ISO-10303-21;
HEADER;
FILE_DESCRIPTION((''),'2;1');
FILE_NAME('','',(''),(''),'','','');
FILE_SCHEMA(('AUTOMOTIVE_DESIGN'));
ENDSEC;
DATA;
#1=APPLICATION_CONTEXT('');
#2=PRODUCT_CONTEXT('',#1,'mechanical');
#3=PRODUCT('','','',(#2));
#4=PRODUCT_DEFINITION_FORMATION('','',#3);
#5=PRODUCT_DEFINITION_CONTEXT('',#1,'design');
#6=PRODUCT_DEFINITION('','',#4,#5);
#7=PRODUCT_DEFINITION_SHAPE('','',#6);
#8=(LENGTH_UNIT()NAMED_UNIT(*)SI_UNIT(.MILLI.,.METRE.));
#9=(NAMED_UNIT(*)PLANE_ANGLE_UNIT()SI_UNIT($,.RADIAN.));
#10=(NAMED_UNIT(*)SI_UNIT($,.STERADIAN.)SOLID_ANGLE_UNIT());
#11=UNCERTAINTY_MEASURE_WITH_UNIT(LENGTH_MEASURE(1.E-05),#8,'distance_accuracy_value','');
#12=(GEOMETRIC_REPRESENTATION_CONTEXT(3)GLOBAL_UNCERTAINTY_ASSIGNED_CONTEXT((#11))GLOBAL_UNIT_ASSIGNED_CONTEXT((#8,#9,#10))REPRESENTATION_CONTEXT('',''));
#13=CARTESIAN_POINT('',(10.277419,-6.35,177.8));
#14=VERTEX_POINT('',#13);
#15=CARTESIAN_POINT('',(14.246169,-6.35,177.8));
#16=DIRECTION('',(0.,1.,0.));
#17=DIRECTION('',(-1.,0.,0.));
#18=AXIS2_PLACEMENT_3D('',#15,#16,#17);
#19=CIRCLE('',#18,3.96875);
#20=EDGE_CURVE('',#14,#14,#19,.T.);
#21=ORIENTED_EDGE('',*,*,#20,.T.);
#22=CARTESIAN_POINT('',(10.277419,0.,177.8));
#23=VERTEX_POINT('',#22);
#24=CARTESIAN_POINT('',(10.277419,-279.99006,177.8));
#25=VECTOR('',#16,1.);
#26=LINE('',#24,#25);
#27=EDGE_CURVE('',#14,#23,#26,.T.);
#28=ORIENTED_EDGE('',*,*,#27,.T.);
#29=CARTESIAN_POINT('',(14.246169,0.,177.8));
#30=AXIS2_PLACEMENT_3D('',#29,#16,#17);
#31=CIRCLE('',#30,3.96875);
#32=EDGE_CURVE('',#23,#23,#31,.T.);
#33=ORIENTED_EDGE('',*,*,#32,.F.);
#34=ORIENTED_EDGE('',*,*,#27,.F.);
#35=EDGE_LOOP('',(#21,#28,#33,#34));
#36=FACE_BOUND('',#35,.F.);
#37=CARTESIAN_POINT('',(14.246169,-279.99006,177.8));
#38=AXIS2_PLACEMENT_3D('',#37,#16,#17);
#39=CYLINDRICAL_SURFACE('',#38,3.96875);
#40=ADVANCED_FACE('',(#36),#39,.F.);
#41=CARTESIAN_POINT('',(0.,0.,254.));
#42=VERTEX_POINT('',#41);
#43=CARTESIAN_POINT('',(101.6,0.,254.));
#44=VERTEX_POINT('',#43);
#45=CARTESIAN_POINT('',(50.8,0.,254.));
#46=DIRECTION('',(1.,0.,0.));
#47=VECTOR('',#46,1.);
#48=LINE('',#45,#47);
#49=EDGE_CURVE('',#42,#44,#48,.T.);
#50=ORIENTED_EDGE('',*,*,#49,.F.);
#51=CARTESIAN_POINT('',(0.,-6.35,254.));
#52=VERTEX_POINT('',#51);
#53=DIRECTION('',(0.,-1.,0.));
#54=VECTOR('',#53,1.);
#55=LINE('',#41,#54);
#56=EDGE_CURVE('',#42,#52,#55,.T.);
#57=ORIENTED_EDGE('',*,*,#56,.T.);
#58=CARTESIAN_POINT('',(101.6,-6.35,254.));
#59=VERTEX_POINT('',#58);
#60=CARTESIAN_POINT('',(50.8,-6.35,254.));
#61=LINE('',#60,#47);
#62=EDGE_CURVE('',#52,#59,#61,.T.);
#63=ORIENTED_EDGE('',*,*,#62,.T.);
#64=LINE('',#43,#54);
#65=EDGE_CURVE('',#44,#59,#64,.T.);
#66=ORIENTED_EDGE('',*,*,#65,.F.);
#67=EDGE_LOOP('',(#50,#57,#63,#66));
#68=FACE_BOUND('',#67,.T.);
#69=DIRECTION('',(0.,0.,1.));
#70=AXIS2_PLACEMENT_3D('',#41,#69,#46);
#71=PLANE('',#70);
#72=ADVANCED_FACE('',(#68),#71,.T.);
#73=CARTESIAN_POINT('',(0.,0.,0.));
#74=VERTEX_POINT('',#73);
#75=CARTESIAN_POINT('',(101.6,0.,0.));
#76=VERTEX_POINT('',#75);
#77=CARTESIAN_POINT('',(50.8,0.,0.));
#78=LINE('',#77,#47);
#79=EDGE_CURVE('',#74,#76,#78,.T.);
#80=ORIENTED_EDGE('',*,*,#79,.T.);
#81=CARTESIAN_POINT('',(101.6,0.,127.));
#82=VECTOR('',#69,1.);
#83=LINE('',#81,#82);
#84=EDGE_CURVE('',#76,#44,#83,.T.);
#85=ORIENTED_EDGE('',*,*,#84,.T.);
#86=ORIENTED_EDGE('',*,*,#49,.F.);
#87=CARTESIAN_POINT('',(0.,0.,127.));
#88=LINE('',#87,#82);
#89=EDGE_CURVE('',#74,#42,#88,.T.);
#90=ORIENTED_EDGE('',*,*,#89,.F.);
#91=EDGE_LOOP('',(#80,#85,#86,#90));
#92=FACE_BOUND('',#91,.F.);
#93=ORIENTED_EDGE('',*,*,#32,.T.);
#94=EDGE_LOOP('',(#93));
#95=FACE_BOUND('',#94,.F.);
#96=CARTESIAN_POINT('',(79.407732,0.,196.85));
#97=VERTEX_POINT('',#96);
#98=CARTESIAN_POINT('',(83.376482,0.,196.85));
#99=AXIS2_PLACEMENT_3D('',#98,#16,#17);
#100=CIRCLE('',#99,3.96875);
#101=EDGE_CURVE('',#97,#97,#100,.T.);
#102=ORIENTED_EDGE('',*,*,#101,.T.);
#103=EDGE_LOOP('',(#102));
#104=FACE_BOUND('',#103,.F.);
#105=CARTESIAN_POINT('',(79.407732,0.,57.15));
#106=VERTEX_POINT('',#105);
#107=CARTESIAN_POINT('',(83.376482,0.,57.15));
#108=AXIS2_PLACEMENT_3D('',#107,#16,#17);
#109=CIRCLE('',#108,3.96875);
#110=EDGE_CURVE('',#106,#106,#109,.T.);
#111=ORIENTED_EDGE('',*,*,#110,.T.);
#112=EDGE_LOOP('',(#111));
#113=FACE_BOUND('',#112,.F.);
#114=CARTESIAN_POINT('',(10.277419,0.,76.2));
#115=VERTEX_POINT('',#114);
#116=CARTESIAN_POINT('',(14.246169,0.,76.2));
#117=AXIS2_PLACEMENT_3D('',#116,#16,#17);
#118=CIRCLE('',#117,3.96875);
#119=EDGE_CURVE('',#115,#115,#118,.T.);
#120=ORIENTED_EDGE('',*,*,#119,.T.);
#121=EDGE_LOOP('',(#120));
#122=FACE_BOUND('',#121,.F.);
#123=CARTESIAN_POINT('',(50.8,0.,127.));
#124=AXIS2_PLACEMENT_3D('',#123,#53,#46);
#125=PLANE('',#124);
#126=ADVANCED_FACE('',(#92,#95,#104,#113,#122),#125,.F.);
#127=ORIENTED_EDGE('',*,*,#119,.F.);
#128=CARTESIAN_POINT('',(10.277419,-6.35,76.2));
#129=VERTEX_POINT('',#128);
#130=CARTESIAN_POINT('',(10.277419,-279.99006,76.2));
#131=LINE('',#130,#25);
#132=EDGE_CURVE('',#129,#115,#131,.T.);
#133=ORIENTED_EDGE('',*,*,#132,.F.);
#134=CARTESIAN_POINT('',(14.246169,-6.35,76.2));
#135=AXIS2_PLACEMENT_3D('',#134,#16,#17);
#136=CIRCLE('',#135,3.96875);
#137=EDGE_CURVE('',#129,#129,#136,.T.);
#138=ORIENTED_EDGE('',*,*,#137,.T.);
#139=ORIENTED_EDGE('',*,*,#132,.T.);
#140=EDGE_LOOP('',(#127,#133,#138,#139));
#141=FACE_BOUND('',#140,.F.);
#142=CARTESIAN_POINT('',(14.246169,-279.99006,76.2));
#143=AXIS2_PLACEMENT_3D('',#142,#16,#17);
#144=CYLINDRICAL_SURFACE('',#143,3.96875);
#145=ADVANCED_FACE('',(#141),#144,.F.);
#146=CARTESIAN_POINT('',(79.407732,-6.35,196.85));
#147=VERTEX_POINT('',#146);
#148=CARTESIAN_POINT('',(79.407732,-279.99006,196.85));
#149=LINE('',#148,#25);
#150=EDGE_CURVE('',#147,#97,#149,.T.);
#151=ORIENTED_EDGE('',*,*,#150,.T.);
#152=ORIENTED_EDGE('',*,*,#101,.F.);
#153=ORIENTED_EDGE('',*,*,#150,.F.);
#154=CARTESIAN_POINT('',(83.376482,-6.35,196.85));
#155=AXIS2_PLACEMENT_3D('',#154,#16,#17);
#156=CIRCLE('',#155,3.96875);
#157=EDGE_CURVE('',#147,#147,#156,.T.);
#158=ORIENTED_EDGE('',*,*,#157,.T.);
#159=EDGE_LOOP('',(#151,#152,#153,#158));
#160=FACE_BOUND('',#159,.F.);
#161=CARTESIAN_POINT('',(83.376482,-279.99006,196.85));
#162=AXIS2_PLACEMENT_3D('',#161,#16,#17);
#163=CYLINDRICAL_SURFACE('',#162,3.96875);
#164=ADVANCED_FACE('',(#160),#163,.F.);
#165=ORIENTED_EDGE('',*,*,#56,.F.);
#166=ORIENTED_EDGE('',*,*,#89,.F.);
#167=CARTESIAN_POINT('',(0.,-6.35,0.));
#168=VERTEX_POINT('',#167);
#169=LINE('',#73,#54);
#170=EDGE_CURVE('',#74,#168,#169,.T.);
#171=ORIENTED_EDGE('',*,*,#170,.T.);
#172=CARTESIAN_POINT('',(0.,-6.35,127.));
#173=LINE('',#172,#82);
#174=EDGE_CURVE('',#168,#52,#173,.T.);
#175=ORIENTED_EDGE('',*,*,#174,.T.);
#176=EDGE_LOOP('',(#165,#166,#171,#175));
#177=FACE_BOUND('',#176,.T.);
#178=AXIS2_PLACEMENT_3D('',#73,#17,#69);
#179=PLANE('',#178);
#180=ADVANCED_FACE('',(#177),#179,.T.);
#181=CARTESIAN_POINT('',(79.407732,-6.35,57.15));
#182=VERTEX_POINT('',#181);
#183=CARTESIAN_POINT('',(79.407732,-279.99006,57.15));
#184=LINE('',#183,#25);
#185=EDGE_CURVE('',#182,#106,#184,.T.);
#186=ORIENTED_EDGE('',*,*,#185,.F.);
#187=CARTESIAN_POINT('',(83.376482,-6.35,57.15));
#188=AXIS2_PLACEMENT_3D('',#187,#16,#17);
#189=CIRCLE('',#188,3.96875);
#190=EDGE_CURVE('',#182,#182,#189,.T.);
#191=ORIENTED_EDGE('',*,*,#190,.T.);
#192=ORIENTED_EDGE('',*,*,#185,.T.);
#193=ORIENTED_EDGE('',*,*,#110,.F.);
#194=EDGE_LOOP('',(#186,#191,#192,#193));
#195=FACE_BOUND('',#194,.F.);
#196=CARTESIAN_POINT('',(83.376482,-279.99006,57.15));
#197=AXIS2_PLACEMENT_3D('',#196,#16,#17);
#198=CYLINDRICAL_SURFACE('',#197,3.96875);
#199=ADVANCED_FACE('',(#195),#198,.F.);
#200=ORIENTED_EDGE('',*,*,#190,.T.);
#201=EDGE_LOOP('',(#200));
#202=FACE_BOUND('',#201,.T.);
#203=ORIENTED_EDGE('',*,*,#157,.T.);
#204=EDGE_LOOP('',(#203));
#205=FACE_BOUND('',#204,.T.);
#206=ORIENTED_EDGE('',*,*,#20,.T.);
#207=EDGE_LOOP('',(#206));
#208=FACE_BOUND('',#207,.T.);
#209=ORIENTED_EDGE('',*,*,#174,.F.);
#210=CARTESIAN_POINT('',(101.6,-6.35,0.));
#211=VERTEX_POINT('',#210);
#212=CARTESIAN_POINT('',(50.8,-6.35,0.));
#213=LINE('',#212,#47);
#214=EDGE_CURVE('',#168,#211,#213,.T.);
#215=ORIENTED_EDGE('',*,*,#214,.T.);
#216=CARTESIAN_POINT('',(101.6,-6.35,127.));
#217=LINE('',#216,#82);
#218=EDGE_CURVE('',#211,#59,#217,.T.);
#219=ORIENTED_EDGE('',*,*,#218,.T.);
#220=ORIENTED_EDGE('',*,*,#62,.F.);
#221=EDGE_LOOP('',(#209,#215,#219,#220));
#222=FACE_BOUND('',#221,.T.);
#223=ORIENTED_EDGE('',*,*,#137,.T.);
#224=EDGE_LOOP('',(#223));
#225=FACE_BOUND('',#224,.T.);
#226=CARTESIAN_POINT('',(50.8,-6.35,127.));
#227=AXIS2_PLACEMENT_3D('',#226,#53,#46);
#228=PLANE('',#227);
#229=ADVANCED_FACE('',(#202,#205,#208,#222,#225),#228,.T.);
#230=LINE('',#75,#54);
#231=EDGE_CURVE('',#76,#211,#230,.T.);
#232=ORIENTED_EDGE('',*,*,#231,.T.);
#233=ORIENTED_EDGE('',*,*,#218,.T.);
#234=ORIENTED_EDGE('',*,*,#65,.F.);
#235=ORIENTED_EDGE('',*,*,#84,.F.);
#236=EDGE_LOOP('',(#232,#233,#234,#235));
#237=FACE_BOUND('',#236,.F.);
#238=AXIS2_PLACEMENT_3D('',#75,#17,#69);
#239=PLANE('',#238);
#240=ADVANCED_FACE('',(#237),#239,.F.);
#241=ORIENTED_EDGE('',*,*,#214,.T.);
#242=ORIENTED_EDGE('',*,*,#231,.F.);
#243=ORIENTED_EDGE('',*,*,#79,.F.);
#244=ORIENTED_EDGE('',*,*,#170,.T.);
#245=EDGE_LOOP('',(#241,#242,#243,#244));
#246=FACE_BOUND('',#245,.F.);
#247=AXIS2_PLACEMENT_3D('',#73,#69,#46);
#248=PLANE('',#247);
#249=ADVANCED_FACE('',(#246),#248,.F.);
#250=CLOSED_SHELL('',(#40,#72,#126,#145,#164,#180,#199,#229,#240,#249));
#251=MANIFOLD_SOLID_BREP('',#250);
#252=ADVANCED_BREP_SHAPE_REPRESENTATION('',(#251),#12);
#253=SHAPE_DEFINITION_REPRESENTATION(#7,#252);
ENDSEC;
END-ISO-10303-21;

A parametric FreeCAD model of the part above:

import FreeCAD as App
import Part
import Sketcher
from FreeCAD import Vector
Q = App.Units.Quantity


def add_polygon(sketch, points):
    """Adds a closed chain of lines whose ends are joined by coincident constraints."""
    first, n = sketch.GeometryCount, len(points)
    for a, b in zip(points, points[1:] + points[:1]):
        sketch.addGeometry(Part.LineSegment(App.Vector(*a, 0), App.Vector(*b, 0)), False)
    for i in range(n):
        sketch.addConstraint(Sketcher.Constraint("Coincident", first + i, 2, first + (i + 1) % n, 1))

doc = App.newDocument("Part")
params = doc.addObject("Spreadsheet::Sheet", "Params")
for row, (alias, value) in enumerate([
    ("sketch1_width", "4 in"),
    ("sketch1_height", "10 in"),
    ("pad1_length", "0.25 in"),
    ("sketch2_diameter", "0.3125 in"),
    ("hole_diameter", "0.3125 in"),
    ("sketch3_diameter", "0.3125 in"),
    ("hole2_diameter", "0.3125 in"),
], start=1):
    params.set(f"A{row}", alias)
    params.set(f"B{row}", "=" + value)
    params.setAlias(f"B{row}", alias)

body = doc.addObject("PartDesign::Body", "Body")

sketch1 = body.newObject("Sketcher::SketchObject", "Sketch")
sketch1.AttachmentSupport = (doc.getObject("XZ_Plane"), [""])
sketch1.MapMode = "FlatFace"
add_polygon(sketch1, [(0, 254), (0, 0), (102, 0), (102, 254)])
sketch1.addConstraint(Sketcher.Constraint("Vertical", 0))
sketch1.addConstraint(Sketcher.Constraint("Horizontal", 1))
sketch1.addConstraint(Sketcher.Constraint("Vertical", 2))
sketch1.addConstraint(Sketcher.Constraint("Horizontal", 3))
sketch1.addConstraint(Sketcher.Constraint("Coincident", 0, 2, -1, 1))
sketch1.addConstraint(Sketcher.Constraint("DistanceX", 1, 1, 1, 2, Q("4 in")))
sketch1.addConstraint(Sketcher.Constraint("DistanceY", 0, 2, 0, 1, Q("10 in")))
sketch1.setExpression("Constraints[9]", "Params.sketch1_width")
sketch1.setExpression("Constraints[10]", "Params.sketch1_height")
pad1 = body.newObject("PartDesign::Pad", "Pad")
pad1.Profile = sketch1
pad1.setExpression("Length", "Params.pad1_length")

sketch2 = body.newObject("Sketcher::SketchObject", "Sketch001")
sketch2.AttachmentSupport = (doc.getObject("XZ_Plane"), [""])
sketch2.MapMode = "FlatFace"
sketch2.AttachmentOffset = App.Placement(Vector(0, 0, 0.25 * 25.4), App.Rotation())
sketch2.addGeometry(Part.Circle(Vector(83.4, 57.1, 0), Vector(0, 0, 1), 4), False)
sketch2.addGeometry(Part.Circle(Vector(83.4, 196.8, 0), Vector(0, 0, 1), 4), False)
sketch2.addConstraint(Sketcher.Constraint("Equal", 0, 1))
sketch2.addConstraint(Sketcher.Constraint("Vertical", 0, 3, 1, 3))
sketch2.addConstraint(Sketcher.Constraint("Diameter", 0, Q("0.3125 in")))
sketch2.addConstraint(Sketcher.Constraint("DistanceY", 0, 3, 1, 3, Q("5.5 in")))
sketch2.addConstraint(Sketcher.Constraint("DistanceY", -1, 1, 0, 3, Q("2.25 in")))
sketch2.addConstraint(Sketcher.Constraint("DistanceX", -1, 1, 0, 3, 83.376482))
sketch2.setExpression("Constraints[2]", "Params.sketch2_diameter")
doc.recompute()
hole = body.newObject("PartDesign::Hole", "Hole")
hole.Profile = sketch2
hole.ThreadType = "None"
hole.setExpression("Diameter", "Params.hole_diameter")
hole.DepthType = "ThroughAll"

sketch3 = body.newObject("Sketcher::SketchObject", "Sketch002")
sketch3.AttachmentSupport = (doc.getObject("XZ_Plane"), [""])
sketch3.MapMode = "FlatFace"
sketch3.AttachmentOffset = App.Placement(Vector(0, 0, 0.25 * 25.4), App.Rotation())
sketch3.addGeometry(Part.Circle(Vector(14.2, 76.2, 0), Vector(0, 0, 1), 4), False)
sketch3.addGeometry(Part.Circle(Vector(14.2, 177.8, 0), Vector(0, 0, 1), 4), False)
sketch3.addConstraint(Sketcher.Constraint("Equal", 0, 1))
sketch3.addConstraint(Sketcher.Constraint("Vertical", 0, 3, 1, 3))
sketch3.addConstraint(Sketcher.Constraint("Diameter", 0, Q("0.3125 in")))
sketch3.addConstraint(Sketcher.Constraint("DistanceY", -1, 1, 0, 3, Q("3 in")))
sketch3.addConstraint(Sketcher.Constraint("DistanceY", -1, 1, 1, 3, Q("7 in")))
sketch3.addConstraint(Sketcher.Constraint("DistanceX", -1, 1, 0, 3, 14.246169))
sketch3.setExpression("Constraints[2]", "Params.sketch3_diameter")
doc.recompute()
hole2 = body.newObject("PartDesign::Hole", "Hole001")
hole2.Profile = sketch3
hole2.ThreadType = "None"
hole2.setExpression("Diameter", "Params.hole2_diameter")
hole2.DepthType = "ThroughAll"

doc.recompute()
